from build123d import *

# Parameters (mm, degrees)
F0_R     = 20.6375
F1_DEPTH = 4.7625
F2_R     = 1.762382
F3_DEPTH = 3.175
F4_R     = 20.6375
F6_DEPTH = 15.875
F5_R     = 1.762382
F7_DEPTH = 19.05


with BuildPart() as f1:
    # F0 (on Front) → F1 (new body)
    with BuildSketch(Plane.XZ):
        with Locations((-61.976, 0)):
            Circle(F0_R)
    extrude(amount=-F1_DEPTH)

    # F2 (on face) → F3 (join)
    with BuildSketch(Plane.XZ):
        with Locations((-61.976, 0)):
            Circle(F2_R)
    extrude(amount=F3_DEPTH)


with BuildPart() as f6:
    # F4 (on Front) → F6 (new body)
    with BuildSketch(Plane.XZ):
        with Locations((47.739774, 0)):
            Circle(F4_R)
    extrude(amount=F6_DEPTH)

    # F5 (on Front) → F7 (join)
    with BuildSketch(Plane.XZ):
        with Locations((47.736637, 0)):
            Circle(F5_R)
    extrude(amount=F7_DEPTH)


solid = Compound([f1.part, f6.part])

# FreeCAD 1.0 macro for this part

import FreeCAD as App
import Part
import Sketcher
from FreeCAD import Vector
Q = App.Units.Quantity

doc = App.newDocument("Part")
body = doc.addObject("PartDesign::Body", "Body")

# Sketch on XZ plane
sketch1 = body.newObject("Sketcher::SketchObject", "Sketch")
sketch1.AttachmentSupport = (doc.getObject("XZ_Plane"), [""])
sketch1.MapMode = "FlatFace"
sketch1.addGeometry(Part.Circle(Vector(-61.976, 0, 0), Vector(0, 0, 1), 20.6375), False)
sketch1.addConstraint(Sketcher.Constraint("PointOnObject", 0, 3, -1))
sketch1.addConstraint(Sketcher.Constraint("Diameter", 0, Q("1.625 in")))
sketch1.addConstraint(Sketcher.Constraint("DistanceX", 0, 3, -1, 1, Q("2.44 in")))
pad1 = body.newObject("PartDesign::Pad", "Pad")
pad1.Profile = sketch1
pad1.Length = Q("0.1875 in")
pad1.Reversed = True

# Sketch on XZ plane
sketch2 = body.newObject("Sketcher::SketchObject", "Sketch001")
sketch2.AttachmentSupport = (doc.getObject("XZ_Plane"), [""])
sketch2.MapMode = "FlatFace"
sketch2.addGeometry(Part.Circle(Vector(-61.976, 0, 0), Vector(0, 0, 1), 1.762382), False)
sketch2.addConstraint(Sketcher.Constraint("PointOnObject", 0, 3, -1))
sketch2.addConstraint(Sketcher.Constraint("DistanceX", 0, 3, -1, 1, Q("2.44 in")))
sketch2.addConstraint(Sketcher.Constraint("Diameter", 0, 3.524764))
pad2 = body.newObject("PartDesign::Pad", "Pad001")
pad2.Profile = sketch2
pad2.Length = Q("0.125 in")
body2 = doc.addObject("PartDesign::Body", "Body001")

# Sketch on XZ plane
sketch3 = body2.newObject("Sketcher::SketchObject", "Sketch002")
sketch3.AttachmentSupport = (doc.getObject("XZ_Plane001"), [""])
sketch3.MapMode = "FlatFace"
sketch3.addGeometry(Part.Circle(Vector(47.739774, 0, 0), Vector(0, 0, 1), 20.6375), False)
sketch3.addConstraint(Sketcher.Constraint("PointOnObject", 0, 3, -1))
sketch3.addConstraint(Sketcher.Constraint("Diameter", 0, Q("1.625 in")))
sketch3.addConstraint(Sketcher.Constraint("DistanceX", -1, 1, 0, 3, 47.739774))
pad3 = body2.newObject("PartDesign::Pad", "Pad002")
pad3.Profile = sketch3
pad3.Length = Q("0.625 in")

# Sketch on XZ plane
sketch4 = body2.newObject("Sketcher::SketchObject", "Sketch003")
sketch4.AttachmentSupport = (doc.getObject("XZ_Plane001"), [""])
sketch4.MapMode = "FlatFace"
sketch4.addGeometry(Part.Circle(Vector(47.736637, 0, 0), Vector(0, 0, 1), 1.762382), False)
sketch4.addConstraint(Sketcher.Constraint("PointOnObject", 0, 3, -1))
sketch4.addConstraint(Sketcher.Constraint("Diameter", 0, 3.524764))
sketch4.addConstraint(Sketcher.Constraint("DistanceX", -1, 1, 0, 3, 47.736637))
pad4 = body2.newObject("PartDesign::Pad", "Pad003")
pad4.Profile = sketch4
pad4.Length = Q("0.75 in")

doc.recompute()
